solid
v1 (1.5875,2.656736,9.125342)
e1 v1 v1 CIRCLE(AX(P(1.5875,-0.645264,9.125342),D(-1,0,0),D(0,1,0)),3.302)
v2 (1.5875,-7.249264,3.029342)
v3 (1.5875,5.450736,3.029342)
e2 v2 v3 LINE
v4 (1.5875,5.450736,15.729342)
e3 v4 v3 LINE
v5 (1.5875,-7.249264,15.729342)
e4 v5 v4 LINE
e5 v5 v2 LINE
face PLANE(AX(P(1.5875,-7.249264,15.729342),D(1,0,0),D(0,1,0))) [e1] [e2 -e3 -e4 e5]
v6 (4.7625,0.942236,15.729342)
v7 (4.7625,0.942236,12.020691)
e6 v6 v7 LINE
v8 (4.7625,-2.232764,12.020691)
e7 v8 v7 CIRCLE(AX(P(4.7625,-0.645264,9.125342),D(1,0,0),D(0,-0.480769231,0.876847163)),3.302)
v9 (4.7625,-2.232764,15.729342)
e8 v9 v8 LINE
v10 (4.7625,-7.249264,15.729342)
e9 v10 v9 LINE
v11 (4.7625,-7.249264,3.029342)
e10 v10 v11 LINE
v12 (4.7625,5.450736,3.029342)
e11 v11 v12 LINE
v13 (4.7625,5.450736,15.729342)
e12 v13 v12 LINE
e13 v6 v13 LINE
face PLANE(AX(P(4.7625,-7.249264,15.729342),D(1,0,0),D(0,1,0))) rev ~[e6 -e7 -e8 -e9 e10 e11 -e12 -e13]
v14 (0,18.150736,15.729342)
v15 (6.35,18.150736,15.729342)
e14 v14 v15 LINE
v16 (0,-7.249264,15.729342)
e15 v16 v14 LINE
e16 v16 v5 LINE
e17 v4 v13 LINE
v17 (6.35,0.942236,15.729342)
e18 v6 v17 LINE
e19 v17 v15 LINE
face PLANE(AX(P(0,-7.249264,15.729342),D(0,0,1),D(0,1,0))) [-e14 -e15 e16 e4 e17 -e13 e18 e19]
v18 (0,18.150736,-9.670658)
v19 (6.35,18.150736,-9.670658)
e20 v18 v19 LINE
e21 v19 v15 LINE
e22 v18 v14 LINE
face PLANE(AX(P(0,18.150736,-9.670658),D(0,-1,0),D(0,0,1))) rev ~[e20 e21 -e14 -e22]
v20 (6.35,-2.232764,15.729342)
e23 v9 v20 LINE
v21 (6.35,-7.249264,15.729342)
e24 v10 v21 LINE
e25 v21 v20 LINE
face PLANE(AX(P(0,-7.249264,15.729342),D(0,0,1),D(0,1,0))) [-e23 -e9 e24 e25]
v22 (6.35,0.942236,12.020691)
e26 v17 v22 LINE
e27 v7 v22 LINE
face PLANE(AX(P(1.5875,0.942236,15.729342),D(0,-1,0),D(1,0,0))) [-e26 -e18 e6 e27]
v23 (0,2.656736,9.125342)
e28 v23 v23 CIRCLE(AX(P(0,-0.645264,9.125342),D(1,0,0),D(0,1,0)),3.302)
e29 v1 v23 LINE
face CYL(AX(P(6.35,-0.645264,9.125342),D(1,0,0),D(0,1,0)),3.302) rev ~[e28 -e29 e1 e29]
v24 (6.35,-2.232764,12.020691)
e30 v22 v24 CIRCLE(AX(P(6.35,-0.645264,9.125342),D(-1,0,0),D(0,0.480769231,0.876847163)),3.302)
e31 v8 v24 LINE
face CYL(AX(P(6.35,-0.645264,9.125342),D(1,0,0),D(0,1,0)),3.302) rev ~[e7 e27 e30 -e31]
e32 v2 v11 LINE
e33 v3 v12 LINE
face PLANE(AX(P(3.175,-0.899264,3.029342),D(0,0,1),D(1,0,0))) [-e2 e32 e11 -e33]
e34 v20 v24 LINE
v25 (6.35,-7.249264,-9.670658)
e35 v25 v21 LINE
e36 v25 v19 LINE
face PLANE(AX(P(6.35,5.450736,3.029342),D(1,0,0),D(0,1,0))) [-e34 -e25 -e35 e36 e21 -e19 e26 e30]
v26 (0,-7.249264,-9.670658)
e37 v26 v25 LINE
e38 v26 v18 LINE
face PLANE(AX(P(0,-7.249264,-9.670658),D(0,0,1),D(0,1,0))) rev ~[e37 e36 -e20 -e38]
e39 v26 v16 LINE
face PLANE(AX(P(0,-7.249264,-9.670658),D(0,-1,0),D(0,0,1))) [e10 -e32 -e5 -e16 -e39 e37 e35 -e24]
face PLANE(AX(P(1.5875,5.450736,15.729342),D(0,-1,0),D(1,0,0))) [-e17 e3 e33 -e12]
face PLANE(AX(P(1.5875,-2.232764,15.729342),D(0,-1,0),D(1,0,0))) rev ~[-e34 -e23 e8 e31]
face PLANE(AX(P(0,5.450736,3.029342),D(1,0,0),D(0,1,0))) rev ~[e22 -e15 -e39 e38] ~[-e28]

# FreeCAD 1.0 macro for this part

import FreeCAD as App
import Part
import Sketcher
from FreeCAD import Vector
Q = App.Units.Quantity

doc = App.newDocument("Part")
body = doc.addObject("PartDesign::Body", "Body")

sketch1 = doc.addObject("Sketcher::SketchObject", "Sketch")
body.addObject(sketch1)
sketch1.AttachmentSupport = (doc.YZ_Plane, [""])
sketch1.MapMode = "FlatFace"
sketch1.addGeometry([
    Part.LineSegment(Vector(-7.249264, 15.729342, 0), Vector(-7.249264, -9.670658, 0)),
    Part.LineSegment(Vector(-7.249264, -9.670658, 0), Vector(18.150736, -9.670658, 0)),
    Part.LineSegment(Vector(18.150736, -9.670658, 0), Vector(18.150736, 15.729342, 0)),
    Part.LineSegment(Vector(18.150736, 15.729342, 0), Vector(-7.249264, 15.729342, 0)),
], False)
sketch1.addConstraint([
    Sketcher.Constraint("Coincident", 0, 2, 1, 1),
    Sketcher.Constraint("Coincident", 1, 2, 2, 1),
    Sketcher.Constraint("Coincident", 2, 2, 3, 1),
    Sketcher.Constraint("Coincident", 3, 2, 0, 1),
    Sketcher.Constraint("Vertical", 0),
    Sketcher.Constraint("Horizontal", 1),
    Sketcher.Constraint("Vertical", 2),
    Sketcher.Constraint("Horizontal", 3),
    Sketcher.Constraint("Equal", 3, 0),
    Sketcher.Constraint("DistanceX", 1, 1, 1, 2, Q("1 in")),
    Sketcher.Constraint("DistanceX", 0, 2, -1, 1, 7.249264),
    Sketcher.Constraint("DistanceY", 0, 2, -1, 1, 9.670658),
])
pad1 = doc.addObject("PartDesign::Pad", "Pad")
body.addObject(pad1)
pad1.Profile = sketch1
pad1.Length = Q("0.25 in")

sketch2 = doc.addObject("Sketcher::SketchObject", "Sketch001")
body.addObject(sketch2)
sketch2.AttachmentSupport = (doc.YZ_Plane, [""])
sketch2.MapMode = "FlatFace"
sketch2.AttachmentOffset = App.Placement(Vector(0, 0, 0.25 * 25.4), App.Rotation())
sketch2.addGeometry(Part.Circle(Vector(-0.645264, 9.125342, 0), Vector(0, 0, 1), 3.302), False)
sketch2.addConstraint([
    Sketcher.Constraint("Diameter", 0, Q("0.26 in")),
    Sketcher.Constraint("DistanceX", 0, 3, -1, 1, 0.645264),
    Sketcher.Constraint("DistanceY", -1, 1, 0, 3, 9.125342),
])
pocket1 = doc.addObject("PartDesign::Pocket", "Pocket")
body.addObject(pocket1)
pocket1.Profile = sketch2
pocket1.Length = Q("1 in")

sketch3 = doc.addObject("Sketcher::SketchObject", "Sketch002")
body.addObject(sketch3)
sketch3.AttachmentSupport = (doc.XY_Plane, [""])
sketch3.MapMode = "FlatFace"
sketch3.AttachmentOffset = App.Placement(Vector(0, 0, 15.729342), App.Rotation())
sketch3.addGeometry([
    Part.LineSegment(Vector(1.5875, 5.450736, 0), Vector(1.5875, -7.249264, 0)),
    Part.LineSegment(Vector(1.5875, -7.249264, 0), Vector(4.7625, -7.249264, 0)),
    Part.LineSegment(Vector(4.7625, -7.249264, 0), Vector(4.7625, 5.450736, 0)),
    Part.LineSegment(Vector(4.7625, 5.450736, 0), Vector(1.5875, 5.450736, 0)),
], False)
sketch3.addConstraint([
    Sketcher.Constraint("Coincident", 0, 2, 1, 1),
    Sketcher.Constraint("Coincident", 1, 2, 2, 1),
    Sketcher.Constraint("Coincident", 2, 2, 3, 1),
    Sketcher.Constraint("Coincident", 3, 2, 0, 1),
    Sketcher.Constraint("Vertical", 0),
    Sketcher.Constraint("Horizontal", 1),
    Sketcher.Constraint("Vertical", 2),
    Sketcher.Constraint("Horizontal", 3),
    Sketcher.Constraint("DistanceY", 0, 2, 0, 1, Q("0.5 in")),
    Sketcher.Constraint("DistanceX", 1, 1, 1, 2, Q("0.125 in")),
    Sketcher.Constraint("DistanceX", -1, 1, 0, 2, Q("0.0625 in")),
    Sketcher.Constraint("DistanceY", 0, 2, -1, 1, 7.249264),
])
pocket2 = doc.addObject("PartDesign::Pocket", "Pocket001")
body.addObject(pocket2)
pocket2.Profile = sketch3
pocket2.Length = Q("0.5 in")

sketch4 = doc.addObject("Sketcher::SketchObject", "Sketch003")
body.addObject(sketch4)
sketch4.AttachmentSupport = (doc.XY_Plane, [""])
sketch4.MapMode = "FlatFace"
sketch4.AttachmentOffset = App.Placement(Vector(0, 0, 15.729342), App.Rotation())
sketch4.addGeometry([
    Part.LineSegment(Vector(1.5875, 0.942236, 0), Vector(1.5875, -2.232764, 0)),
    Part.LineSegment(Vector(1.5875, -2.232764, 0), Vector(6.35, -2.232764, 0)),
    Part.LineSegment(Vector(6.35, -2.232764, 0), Vector(6.35, 0.942236, 0)),
    Part.LineSegment(Vector(6.35, 0.942236, 0), Vector(1.5875, 0.942236, 0)),
], False)
sketch4.addConstraint([
    Sketcher.Constraint("Coincident", 0, 2, 1, 1),
    Sketcher.Constraint("Coincident", 1, 2, 2, 1),
    Sketcher.Constraint("Coincident", 2, 2, 3, 1),
    Sketcher.Constraint("Coincident", 3, 2, 0, 1),
    Sketcher.Constraint("Vertical", 0),
    Sketcher.Constraint("Horizontal", 1),
    Sketcher.Constraint("Vertical", 2),
    Sketcher.Constraint("Horizontal", 3),
    Sketcher.Constraint("DistanceX", 1, 1, 1, 2, Q("0.1875 in")),
    Sketcher.Constraint("DistanceY", 0, 2, 0, 1, Q("0.125 in")),
    Sketcher.Constraint("DistanceX", -1, 1, 1, 2, Q("0.25 in")),
    Sketcher.Constraint("DistanceY", 0, 2, -1, 1, 2.232764),
])
pocket3 = doc.addObject("PartDesign::Pocket", "Pocket002")
body.addObject(pocket3)
pocket3.Profile = sketch4
pocket3.Length = Q("0.26 in")

doc.recompute()
